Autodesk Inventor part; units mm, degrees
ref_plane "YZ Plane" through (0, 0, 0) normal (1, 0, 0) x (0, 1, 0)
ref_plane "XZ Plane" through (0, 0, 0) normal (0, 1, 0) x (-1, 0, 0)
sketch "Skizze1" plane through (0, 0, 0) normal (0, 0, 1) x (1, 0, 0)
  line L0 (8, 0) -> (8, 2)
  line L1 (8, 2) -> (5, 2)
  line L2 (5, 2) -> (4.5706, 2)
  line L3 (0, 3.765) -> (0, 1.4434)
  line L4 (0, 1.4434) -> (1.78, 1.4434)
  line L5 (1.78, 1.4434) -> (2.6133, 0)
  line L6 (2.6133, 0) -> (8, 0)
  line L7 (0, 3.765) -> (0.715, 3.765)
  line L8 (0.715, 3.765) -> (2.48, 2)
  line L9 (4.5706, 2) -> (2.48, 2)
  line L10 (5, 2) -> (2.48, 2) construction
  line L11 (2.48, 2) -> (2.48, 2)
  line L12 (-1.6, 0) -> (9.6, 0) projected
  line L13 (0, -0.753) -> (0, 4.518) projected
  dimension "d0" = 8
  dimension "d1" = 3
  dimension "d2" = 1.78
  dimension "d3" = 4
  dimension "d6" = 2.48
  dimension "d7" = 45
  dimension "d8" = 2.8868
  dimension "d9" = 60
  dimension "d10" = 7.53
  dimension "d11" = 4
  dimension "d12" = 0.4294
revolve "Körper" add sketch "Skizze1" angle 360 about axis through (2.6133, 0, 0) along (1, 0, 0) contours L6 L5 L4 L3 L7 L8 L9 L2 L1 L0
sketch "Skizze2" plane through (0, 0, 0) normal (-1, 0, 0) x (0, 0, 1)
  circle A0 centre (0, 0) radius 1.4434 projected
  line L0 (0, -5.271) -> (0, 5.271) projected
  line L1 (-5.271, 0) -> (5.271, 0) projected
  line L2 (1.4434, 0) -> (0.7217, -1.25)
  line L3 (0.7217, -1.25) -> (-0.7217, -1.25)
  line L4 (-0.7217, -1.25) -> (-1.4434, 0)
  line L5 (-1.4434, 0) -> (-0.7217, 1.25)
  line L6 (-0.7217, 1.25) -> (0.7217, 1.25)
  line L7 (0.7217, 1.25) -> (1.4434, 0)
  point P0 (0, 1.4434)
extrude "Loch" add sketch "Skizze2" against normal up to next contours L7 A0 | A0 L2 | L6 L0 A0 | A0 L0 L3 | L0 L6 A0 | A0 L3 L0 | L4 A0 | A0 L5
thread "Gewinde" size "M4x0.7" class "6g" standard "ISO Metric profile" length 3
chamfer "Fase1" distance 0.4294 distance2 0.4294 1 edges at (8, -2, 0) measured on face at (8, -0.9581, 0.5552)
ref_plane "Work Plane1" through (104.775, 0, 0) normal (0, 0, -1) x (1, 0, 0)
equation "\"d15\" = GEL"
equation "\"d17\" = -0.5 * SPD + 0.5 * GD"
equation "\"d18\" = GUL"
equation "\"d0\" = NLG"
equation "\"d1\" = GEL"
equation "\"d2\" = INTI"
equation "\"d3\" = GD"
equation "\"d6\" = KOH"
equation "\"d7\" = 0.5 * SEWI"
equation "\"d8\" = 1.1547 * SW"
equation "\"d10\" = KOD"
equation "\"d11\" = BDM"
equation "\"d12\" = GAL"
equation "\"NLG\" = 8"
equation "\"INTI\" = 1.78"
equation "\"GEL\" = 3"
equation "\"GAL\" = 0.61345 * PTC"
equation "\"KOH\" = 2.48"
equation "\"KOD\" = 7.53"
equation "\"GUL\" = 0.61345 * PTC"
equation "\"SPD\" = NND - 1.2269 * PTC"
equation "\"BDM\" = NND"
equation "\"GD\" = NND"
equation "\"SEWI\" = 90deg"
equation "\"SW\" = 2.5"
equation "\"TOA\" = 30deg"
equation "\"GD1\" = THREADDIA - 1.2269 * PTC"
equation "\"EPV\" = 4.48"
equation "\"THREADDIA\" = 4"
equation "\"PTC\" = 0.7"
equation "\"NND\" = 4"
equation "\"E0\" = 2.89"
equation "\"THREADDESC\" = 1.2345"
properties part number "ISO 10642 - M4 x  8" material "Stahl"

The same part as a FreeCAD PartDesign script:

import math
import FreeCAD as App
import Part
import Sketcher

V = App.Vector
Q = App.Units.Quantity


def edges_at(feature, points):
    """Names of the edges that pass closest to the given points."""
    edges = feature.Shape.Edges
    near = lambda p: min(range(len(edges)), key=lambda i: edges[i].distToShape(Part.Vertex(*p))[0])
    return sorted({f"Edge{near(p) + 1}" for p in points})

doc = App.newDocument("Part")
body = doc.addObject("PartDesign::Body", "Body")

sketch1 = body.newObject("Sketcher::SketchObject", "Sketch")
sketch1.AttachmentSupport = (doc.getObject("XY_Plane"), [""])
sketch1.MapMode = "FlatFace"
sketch1.addGeometry([
    Part.LineSegment(V(2.6, 0, 0), V(8, 0, 0)),
    Part.LineSegment(V(8, 0, 0), V(8, 2, 0)),
    Part.LineSegment(V(8, 2, 0), V(2.5, 2, 0)),
    Part.LineSegment(V(2.5, 2, 0), V(0.7, 3.8, 0)),
    Part.LineSegment(V(0.7, 3.8, 0), V(0, 3.8, 0)),
    Part.LineSegment(V(0, 3.8, 0), V(0, 1.4, 0)),
    Part.LineSegment(V(0, 1.4, 0), V(1.8, 1.4, 0)),
    Part.LineSegment(V(1.8, 1.4, 0), V(2.6, 0, 0)),
], False)
sketch1.addConstraint([
    Sketcher.Constraint("Coincident", 0, 2, 1, 1),
    Sketcher.Constraint("Coincident", 1, 2, 2, 1),
    Sketcher.Constraint("Coincident", 2, 2, 3, 1),
    Sketcher.Constraint("Coincident", 3, 2, 4, 1),
    Sketcher.Constraint("Coincident", 4, 2, 5, 1),
    Sketcher.Constraint("Coincident", 5, 2, 6, 1),
    Sketcher.Constraint("Coincident", 6, 2, 7, 1),
    Sketcher.Constraint("Coincident", 7, 2, 0, 1),
    Sketcher.Constraint("Horizontal", 0),
    Sketcher.Constraint("Vertical", 1),
    Sketcher.Constraint("Horizontal", 2),
    Sketcher.Constraint("Horizontal", 4),
    Sketcher.Constraint("Vertical", 5),
    Sketcher.Constraint("Horizontal", 6),
    Sketcher.Constraint("PointOnObject", 0, 2, -1),
    Sketcher.Constraint("PointOnObject", 4, 2, -2),
    Sketcher.Constraint("DistanceX", -1, 1, 0, 2, 8.0),
    Sketcher.Constraint("DistanceX", 6, 1, 6, 2, 1.78),
    Sketcher.Constraint("DistanceY", 1, 1, 1, 2, 2.0),
    Sketcher.Constraint("DistanceX", -1, 1, 2, 2, 2.48),
    Sketcher.Constraint("Angle", 3, Q("135 deg")),
    Sketcher.Constraint("DistanceX", 4, 2, 4, 1, 0.715),
    Sketcher.Constraint("DistanceX", 0, 1, 0, 2, 5.3867),
    Sketcher.Constraint("DistanceY", 5, 2, 5, 1, 2.3216),
])
revolution = body.newObject("PartDesign::Revolution", "Revolution")
revolution.Profile = sketch1
revolution.ReferenceAxis = (sketch1, ["H_Axis"])
revolution.Angle = 360

sketch2 = body.newObject("Sketcher::SketchObject", "Sketch001")
sketch2.AttachmentSupport = (doc.getObject("YZ_Plane"), [""])
sketch2.MapMode = "FlatFace"
sketch2.addGeometry([
    Part.LineSegment(V(1.2, 0.7, 0), V(0, 1.4, 0)),
    Part.ArcOfCircle(Part.Circle(V(0, 0, 0), V(0, 0, 1), 1.4), math.radians(30), math.radians(90)),
    Part.ArcOfCircle(Part.Circle(V(0, 0, 0), V(0, 0, 1), 1.4), math.radians(90), math.radians(150)),
    Part.LineSegment(V(0, 1.4, 0), V(-1.2, 0.7, 0)),
    Part.ArcOfCircle(Part.Circle(V(0, 0, 0), V(0, 0, 1), 1.4), math.radians(-30), math.radians(30)),
    Part.LineSegment(V(1.2, 0.7, 0), V(1.2, -0.7, 0)),
    Part.LineSegment(V(-1.2, 0.7, 0), V(-1.2, -0.7, 0)),
    Part.ArcOfCircle(Part.Circle(V(0, 0, 0), V(0, 0, 1), 1.4), math.radians(150), math.radians(210)),
    Part.LineSegment(V(-1.2, -0.7, 0), V(0, -1.4, 0)),
    Part.ArcOfCircle(Part.Circle(V(0, 0, 0), V(0, 0, 1), 1.4), math.radians(-150), math.radians(-90)),
    Part.ArcOfCircle(Part.Circle(V(0, 0, 0), V(0, 0, 1), 1.4), math.radians(-90), math.radians(-30)),
    Part.LineSegment(V(0, -1.4, 0), V(1.2, -0.7, 0)),
], False)
sketch2.addConstraint([
    Sketcher.Constraint("Coincident", 0, 1, 1, 1),
    Sketcher.Constraint("Coincident", 1, 2, 0, 2),
    Sketcher.Constraint("Coincident", 2, 1, 3, 1),
    Sketcher.Constraint("Coincident", 3, 2, 2, 2),
    Sketcher.Constraint("Coincident", 4, 1, 5, 2),
    Sketcher.Constraint("Coincident", 5, 1, 4, 2),
    Sketcher.Constraint("Coincident", 6, 1, 7, 1),
    Sketcher.Constraint("Coincident", 7, 2, 6, 2),
    Sketcher.Constraint("Coincident", 8, 1, 9, 1),
    Sketcher.Constraint("Coincident", 9, 2, 8, 2),
    Sketcher.Constraint("Coincident", 10, 1, 11, 1),
    Sketcher.Constraint("Coincident", 11, 2, 10, 2),
    Sketcher.Constraint("Vertical", 5),
    Sketcher.Constraint("Vertical", 6),
    Sketcher.Constraint("Coincident", 1, 3, -1, 1),
    Sketcher.Constraint("Coincident", 2, 3, -1, 1),
    Sketcher.Constraint("Coincident", 4, 3, -1, 1),
    Sketcher.Constraint("Coincident", 7, 3, -1, 1),
    Sketcher.Constraint("Coincident", 9, 3, -1, 1),
    Sketcher.Constraint("Coincident", 10, 3, -1, 1),
    Sketcher.Constraint("Coincident", 2, 1, 1, 2),
    Sketcher.Constraint("Coincident", 5, 1, 0, 1),
    Sketcher.Constraint("Coincident", 6, 1, 3, 2),
    Sketcher.Constraint("Coincident", 8, 1, 7, 2),
    Sketcher.Constraint("Coincident", 10, 1, 9, 2),
    Sketcher.Constraint("PointOnObject", 1, 2, -2),
    Sketcher.Constraint("PointOnObject", 9, 2, -2),
    Sketcher.Constraint("Parallel", 0, 8),
    Sketcher.Constraint("Parallel", 3, 11),
    Sketcher.Constraint("Angle", 0, Q("149.9996 deg")),
    Sketcher.Constraint("Radius", 1, 1.4434),
])
pad1 = body.newObject("PartDesign::Pad", "Pad")
pad1.Profile = sketch2
pad1.Type = "UpToFirst"
doc.recompute()

chamfer = body.newObject("PartDesign::Chamfer", "Chamfer")
chamfer.Base = (pad1, edges_at(pad1, [(8, -2, 0)]))
chamfer.ChamferType = "Two distances"
chamfer.Size = 0.4294
chamfer.Size2 = 0.4294

doc.recompute()
